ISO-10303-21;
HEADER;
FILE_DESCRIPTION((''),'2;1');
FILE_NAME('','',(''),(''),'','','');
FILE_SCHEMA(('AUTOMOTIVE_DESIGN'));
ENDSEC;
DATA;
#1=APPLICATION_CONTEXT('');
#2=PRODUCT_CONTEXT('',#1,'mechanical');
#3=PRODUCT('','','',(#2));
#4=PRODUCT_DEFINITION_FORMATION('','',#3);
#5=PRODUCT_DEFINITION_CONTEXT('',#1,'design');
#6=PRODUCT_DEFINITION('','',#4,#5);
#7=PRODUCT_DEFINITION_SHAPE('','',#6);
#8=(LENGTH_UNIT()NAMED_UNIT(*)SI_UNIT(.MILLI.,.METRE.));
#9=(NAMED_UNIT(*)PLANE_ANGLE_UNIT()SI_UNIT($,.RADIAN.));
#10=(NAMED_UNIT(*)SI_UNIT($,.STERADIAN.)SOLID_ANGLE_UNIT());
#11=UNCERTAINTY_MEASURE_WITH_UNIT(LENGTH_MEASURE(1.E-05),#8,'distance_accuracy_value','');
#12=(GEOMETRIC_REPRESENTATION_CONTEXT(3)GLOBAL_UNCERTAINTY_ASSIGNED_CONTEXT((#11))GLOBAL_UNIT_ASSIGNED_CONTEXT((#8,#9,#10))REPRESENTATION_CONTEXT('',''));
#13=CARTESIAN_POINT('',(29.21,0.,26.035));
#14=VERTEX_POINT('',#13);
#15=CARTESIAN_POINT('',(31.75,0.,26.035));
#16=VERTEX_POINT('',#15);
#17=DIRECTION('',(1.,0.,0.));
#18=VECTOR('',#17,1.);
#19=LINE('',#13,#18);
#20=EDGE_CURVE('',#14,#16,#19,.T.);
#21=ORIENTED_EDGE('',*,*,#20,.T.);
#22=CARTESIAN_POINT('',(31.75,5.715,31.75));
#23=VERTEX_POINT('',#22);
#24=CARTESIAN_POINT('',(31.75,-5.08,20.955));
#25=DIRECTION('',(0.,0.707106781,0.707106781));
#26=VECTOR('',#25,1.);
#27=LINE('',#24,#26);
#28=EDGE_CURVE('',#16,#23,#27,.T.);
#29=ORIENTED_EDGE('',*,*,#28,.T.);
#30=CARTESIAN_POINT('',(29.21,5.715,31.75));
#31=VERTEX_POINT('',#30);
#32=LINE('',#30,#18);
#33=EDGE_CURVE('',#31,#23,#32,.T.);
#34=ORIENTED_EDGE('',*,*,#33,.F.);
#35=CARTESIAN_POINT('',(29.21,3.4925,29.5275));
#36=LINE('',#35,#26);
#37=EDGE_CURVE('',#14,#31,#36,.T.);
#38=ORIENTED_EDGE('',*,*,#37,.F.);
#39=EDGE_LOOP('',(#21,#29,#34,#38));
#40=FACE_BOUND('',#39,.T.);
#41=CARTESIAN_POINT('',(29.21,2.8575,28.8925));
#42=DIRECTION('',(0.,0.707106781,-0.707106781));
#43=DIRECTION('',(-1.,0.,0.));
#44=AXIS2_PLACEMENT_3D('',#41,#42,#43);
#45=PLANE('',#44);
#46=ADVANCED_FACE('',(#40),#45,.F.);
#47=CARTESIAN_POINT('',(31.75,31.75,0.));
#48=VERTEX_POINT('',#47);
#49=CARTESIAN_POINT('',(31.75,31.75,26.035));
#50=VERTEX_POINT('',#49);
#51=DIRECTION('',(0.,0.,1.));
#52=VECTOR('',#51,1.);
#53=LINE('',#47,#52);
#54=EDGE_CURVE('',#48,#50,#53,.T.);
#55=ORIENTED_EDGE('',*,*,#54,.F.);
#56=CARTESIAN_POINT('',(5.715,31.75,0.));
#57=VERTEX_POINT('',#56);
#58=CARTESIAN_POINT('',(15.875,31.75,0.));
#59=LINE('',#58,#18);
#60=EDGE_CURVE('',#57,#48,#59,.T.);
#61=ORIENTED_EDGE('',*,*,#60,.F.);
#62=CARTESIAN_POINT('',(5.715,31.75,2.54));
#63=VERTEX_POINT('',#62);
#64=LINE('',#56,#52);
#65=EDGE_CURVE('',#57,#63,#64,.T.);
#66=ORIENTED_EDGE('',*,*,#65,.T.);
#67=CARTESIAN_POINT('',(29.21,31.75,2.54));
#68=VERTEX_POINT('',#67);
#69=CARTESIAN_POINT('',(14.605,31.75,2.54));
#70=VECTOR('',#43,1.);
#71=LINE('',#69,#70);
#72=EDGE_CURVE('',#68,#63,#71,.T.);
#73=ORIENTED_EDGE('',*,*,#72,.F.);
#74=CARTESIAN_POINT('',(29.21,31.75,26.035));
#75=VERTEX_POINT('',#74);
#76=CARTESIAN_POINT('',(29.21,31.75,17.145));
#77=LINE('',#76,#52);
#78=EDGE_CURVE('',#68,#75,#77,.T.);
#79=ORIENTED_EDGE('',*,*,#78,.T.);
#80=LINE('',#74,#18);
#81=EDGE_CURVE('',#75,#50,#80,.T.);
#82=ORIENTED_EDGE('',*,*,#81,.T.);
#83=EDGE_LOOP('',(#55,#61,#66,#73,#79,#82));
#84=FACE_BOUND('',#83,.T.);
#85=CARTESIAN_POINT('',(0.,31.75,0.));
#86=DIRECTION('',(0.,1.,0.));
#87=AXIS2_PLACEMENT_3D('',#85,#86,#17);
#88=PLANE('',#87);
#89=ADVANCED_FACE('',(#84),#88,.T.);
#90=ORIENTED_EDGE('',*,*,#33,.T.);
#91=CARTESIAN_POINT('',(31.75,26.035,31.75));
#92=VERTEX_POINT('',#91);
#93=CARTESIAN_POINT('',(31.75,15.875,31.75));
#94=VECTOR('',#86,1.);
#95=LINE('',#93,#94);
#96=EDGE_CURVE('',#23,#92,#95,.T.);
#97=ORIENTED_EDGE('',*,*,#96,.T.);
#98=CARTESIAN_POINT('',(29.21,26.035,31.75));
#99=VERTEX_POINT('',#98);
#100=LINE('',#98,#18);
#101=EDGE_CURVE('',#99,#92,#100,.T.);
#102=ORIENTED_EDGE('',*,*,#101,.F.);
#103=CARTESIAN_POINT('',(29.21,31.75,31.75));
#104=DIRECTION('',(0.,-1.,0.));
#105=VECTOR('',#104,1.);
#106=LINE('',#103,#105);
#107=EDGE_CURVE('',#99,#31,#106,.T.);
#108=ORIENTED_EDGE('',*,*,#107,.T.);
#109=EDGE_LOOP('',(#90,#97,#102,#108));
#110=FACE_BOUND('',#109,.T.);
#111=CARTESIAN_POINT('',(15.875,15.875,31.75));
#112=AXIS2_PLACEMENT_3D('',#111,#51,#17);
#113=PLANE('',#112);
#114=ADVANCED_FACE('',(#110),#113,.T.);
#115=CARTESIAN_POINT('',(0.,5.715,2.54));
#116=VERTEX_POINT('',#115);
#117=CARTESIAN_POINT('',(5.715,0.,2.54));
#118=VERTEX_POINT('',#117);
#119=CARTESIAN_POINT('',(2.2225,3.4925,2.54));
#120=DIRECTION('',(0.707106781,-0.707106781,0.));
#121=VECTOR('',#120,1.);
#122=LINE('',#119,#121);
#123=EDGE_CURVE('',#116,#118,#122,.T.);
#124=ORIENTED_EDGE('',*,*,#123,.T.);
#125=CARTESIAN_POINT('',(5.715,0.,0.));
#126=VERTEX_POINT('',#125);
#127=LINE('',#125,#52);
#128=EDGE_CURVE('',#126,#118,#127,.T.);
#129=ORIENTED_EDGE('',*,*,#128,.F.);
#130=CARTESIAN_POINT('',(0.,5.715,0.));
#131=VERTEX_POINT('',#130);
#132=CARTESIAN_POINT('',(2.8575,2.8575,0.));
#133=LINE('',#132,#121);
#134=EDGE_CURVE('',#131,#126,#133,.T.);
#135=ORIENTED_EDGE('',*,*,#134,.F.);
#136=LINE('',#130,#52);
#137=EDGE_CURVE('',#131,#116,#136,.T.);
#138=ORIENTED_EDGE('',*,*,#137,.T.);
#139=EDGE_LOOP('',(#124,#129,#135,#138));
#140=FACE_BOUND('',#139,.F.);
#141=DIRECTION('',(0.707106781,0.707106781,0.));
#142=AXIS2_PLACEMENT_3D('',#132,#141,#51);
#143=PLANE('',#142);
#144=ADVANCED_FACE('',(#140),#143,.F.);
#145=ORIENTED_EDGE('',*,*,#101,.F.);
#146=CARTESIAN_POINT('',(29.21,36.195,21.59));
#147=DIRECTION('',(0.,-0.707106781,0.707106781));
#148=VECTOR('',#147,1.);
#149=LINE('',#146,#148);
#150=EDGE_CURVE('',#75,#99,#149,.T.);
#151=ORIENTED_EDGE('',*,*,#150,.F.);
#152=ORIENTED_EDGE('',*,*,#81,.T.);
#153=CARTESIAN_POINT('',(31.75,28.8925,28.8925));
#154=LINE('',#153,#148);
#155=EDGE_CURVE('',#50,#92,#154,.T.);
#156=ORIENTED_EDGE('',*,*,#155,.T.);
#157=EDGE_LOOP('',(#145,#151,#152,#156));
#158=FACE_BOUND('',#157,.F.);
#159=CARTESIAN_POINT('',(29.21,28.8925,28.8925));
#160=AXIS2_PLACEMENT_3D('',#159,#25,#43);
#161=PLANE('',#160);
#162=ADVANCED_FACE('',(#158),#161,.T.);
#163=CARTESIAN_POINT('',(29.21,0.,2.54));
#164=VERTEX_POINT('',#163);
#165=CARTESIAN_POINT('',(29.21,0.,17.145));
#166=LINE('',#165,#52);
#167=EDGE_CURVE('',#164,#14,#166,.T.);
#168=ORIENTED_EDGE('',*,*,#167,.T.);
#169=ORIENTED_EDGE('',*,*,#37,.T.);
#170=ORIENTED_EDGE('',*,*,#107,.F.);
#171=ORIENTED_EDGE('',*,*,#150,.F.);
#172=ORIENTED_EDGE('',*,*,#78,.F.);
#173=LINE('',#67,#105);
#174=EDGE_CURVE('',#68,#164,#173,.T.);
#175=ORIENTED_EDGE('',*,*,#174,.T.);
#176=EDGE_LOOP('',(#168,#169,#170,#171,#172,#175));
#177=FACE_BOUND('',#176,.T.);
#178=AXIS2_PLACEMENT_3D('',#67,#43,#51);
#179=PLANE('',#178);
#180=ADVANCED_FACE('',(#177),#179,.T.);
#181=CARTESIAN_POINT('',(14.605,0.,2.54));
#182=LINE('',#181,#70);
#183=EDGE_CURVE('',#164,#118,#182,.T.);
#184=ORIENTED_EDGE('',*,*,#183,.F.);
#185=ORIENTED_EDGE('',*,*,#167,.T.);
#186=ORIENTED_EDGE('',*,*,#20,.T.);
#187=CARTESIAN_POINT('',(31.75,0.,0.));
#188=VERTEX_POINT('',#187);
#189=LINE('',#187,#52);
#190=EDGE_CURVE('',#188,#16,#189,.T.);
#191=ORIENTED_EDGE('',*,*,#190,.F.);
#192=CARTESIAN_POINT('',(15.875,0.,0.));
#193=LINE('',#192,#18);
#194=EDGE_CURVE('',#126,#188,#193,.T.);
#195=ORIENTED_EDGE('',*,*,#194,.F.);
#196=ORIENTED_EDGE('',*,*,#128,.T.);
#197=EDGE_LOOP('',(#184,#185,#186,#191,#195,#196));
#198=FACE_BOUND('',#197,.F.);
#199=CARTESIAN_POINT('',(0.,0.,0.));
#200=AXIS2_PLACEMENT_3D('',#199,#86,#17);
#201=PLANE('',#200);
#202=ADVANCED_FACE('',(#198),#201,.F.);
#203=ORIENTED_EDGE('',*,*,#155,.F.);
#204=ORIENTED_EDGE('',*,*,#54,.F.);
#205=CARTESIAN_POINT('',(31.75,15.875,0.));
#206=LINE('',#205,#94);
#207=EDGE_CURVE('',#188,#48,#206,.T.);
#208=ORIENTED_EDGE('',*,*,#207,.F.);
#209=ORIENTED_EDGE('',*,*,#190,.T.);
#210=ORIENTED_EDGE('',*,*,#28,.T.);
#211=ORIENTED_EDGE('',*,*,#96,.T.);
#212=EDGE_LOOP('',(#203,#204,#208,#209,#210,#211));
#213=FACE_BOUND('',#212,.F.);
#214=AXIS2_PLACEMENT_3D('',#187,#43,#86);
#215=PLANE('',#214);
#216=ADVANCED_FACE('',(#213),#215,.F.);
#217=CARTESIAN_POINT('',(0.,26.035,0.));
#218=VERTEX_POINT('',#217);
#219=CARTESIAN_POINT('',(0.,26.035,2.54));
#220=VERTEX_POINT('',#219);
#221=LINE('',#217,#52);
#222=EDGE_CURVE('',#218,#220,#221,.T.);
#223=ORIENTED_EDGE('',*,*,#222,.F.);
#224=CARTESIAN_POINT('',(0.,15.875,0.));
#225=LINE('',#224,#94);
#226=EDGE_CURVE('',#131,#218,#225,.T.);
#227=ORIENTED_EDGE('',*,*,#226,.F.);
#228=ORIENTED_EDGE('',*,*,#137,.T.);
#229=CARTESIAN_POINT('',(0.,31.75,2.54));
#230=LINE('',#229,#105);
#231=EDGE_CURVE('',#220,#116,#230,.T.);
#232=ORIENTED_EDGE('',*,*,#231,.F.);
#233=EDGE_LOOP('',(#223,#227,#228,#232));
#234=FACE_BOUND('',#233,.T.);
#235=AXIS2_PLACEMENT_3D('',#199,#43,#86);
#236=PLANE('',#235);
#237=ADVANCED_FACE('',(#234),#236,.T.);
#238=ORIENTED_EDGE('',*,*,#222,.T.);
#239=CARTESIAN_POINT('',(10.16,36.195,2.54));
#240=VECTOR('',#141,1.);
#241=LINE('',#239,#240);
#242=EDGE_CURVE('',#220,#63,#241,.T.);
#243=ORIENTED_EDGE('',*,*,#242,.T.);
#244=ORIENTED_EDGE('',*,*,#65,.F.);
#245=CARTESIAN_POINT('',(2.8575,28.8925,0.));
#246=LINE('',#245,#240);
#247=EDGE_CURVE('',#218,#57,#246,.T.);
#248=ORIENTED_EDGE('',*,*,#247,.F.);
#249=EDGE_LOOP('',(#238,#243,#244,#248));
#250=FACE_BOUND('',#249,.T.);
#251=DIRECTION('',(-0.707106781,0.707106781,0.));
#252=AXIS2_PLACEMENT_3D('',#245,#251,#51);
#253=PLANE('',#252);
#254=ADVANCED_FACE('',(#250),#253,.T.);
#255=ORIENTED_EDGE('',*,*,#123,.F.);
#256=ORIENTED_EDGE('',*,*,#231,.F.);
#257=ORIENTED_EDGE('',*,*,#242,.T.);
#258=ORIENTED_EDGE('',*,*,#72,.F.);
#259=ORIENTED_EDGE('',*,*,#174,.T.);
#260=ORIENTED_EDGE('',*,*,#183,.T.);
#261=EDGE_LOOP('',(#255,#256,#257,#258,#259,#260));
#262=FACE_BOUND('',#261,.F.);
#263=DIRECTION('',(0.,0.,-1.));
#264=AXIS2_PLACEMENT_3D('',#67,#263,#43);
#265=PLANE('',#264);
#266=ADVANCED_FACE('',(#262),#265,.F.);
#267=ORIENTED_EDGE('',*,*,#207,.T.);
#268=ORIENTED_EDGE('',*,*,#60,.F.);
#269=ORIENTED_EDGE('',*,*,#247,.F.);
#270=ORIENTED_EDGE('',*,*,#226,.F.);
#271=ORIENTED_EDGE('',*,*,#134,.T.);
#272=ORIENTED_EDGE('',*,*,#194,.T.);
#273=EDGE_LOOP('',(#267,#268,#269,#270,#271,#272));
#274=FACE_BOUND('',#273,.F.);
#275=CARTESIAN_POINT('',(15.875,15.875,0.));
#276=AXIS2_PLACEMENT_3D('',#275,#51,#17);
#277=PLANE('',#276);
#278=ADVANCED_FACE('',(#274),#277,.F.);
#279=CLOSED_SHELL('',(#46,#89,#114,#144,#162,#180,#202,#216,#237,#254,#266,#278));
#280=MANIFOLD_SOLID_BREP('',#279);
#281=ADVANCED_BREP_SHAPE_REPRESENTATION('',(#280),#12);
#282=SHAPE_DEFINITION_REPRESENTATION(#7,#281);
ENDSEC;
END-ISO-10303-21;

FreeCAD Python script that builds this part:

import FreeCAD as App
import Part
import Sketcher

V = App.Vector
Q = App.Units.Quantity


def edges_at(feature, points):
    """Names of the edges that pass closest to the given points."""
    edges = feature.Shape.Edges
    near = lambda p: min(range(len(edges)), key=lambda i: edges[i].distToShape(Part.Vertex(*p))[0])
    return sorted({f"Edge{near(p) + 1}" for p in points})

doc = App.newDocument("Part")
params = doc.addObject("Spreadsheet::Sheet", "Params")
for row, (alias, value) in enumerate([
    ("sketch1_width", "1.25 in"),
    ("pad1_length", "1.25 in"),
    ("sketch2_width", "1.15 in"),
    ("chamfer_size", "0.225 in"),
], start=1):
    params.set(f"A{row}", alias)
    params.set(f"B{row}", "=" + value)
    params.setAlias(f"B{row}", alias)

body = doc.addObject("PartDesign::Body", "Body")

# Sketch on XY plane
sketch1 = body.newObject("Sketcher::SketchObject", "Sketch")
sketch1.AttachmentSupport = (doc.getObject("XY_Plane"), [""])
sketch1.MapMode = "FlatFace"
sketch1.addGeometry([
    Part.LineSegment(V(0, 31.75, 0), V(0, 0, 0)),
    Part.LineSegment(V(0, 0, 0), V(31.75, 0, 0)),
    Part.LineSegment(V(31.75, 0, 0), V(31.75, 31.75, 0)),
    Part.LineSegment(V(31.75, 31.75, 0), V(0, 31.75, 0)),
], False)
sketch1.addConstraint([
    Sketcher.Constraint("Coincident", 0, 2, 1, 1),
    Sketcher.Constraint("Coincident", 1, 2, 2, 1),
    Sketcher.Constraint("Coincident", 2, 2, 3, 1),
    Sketcher.Constraint("Coincident", 3, 2, 0, 1),
    Sketcher.Constraint("Vertical", 0),
    Sketcher.Constraint("Horizontal", 1),
    Sketcher.Constraint("Vertical", 2),
    Sketcher.Constraint("Horizontal", 3),
    Sketcher.Constraint("Coincident", 0, 2, -1, 1),
    Sketcher.Constraint("Equal", 3, 0),
    Sketcher.Constraint("DistanceX", 1, 1, 1, 2, Q("1.25 in")),
])
sketch1.setExpression("Constraints[10]", "Params.sketch1_width")
pad1 = body.newObject("PartDesign::Pad", "Pad")
pad1.Profile = sketch1
pad1.setExpression("Length", "Params.pad1_length")

# Sketch on XZ plane
sketch2 = body.newObject("Sketcher::SketchObject", "Sketch001")
sketch2.AttachmentSupport = (doc.getObject("XZ_Plane"), [""])
sketch2.MapMode = "FlatFace"
sketch2.AttachmentOffset = App.Placement(V(0, 0, -1.25 * 25.4), App.Rotation())
sketch2.addGeometry([
    Part.LineSegment(V(29.21, 31.75, 0), V(29.21, 2.54, 0)),
    Part.LineSegment(V(29.21, 2.54, 0), V(0, 2.54, 0)),
    Part.LineSegment(V(0, 2.54, 0), V(0, 31.75, 0)),
    Part.LineSegment(V(0, 31.75, 0), V(29.21, 31.75, 0)),
], False)
sketch2.addConstraint([
    Sketcher.Constraint("Coincident", 0, 2, 1, 1),
    Sketcher.Constraint("Coincident", 1, 2, 2, 1),
    Sketcher.Constraint("Coincident", 2, 2, 3, 1),
    Sketcher.Constraint("Coincident", 3, 2, 0, 1),
    Sketcher.Constraint("Vertical", 0),
    Sketcher.Constraint("Horizontal", 1),
    Sketcher.Constraint("Vertical", 2),
    Sketcher.Constraint("Horizontal", 3),
    Sketcher.Constraint("PointOnObject", 1, 2, -2),
    Sketcher.Constraint("Equal", 3, 0),
    Sketcher.Constraint("DistanceX", 1, 2, 1, 1, Q("1.15 in")),
    Sketcher.Constraint("DistanceY", -1, 1, 0, 2, Q("0.1 in")),
])
sketch2.setExpression("Constraints[10]", "Params.sketch2_width")
pocket1 = body.newObject("PartDesign::Pocket", "Pocket")
pocket1.Profile = sketch2
pocket1.Type = "ThroughAll"
pocket1.Reversed = True
doc.recompute()

chamfer = body.newObject("PartDesign::Chamfer", "Chamfer")
chamfer.Base = (pocket1, edges_at(pocket1, [
    (30.48, 31.75, 31.75),
    (30.48, 0, 31.75),
    (0, 0, 1.27),
    (0, 31.75, 1.27),
]))
chamfer.setExpression("Size", "Params.chamfer_size")

doc.recompute()
